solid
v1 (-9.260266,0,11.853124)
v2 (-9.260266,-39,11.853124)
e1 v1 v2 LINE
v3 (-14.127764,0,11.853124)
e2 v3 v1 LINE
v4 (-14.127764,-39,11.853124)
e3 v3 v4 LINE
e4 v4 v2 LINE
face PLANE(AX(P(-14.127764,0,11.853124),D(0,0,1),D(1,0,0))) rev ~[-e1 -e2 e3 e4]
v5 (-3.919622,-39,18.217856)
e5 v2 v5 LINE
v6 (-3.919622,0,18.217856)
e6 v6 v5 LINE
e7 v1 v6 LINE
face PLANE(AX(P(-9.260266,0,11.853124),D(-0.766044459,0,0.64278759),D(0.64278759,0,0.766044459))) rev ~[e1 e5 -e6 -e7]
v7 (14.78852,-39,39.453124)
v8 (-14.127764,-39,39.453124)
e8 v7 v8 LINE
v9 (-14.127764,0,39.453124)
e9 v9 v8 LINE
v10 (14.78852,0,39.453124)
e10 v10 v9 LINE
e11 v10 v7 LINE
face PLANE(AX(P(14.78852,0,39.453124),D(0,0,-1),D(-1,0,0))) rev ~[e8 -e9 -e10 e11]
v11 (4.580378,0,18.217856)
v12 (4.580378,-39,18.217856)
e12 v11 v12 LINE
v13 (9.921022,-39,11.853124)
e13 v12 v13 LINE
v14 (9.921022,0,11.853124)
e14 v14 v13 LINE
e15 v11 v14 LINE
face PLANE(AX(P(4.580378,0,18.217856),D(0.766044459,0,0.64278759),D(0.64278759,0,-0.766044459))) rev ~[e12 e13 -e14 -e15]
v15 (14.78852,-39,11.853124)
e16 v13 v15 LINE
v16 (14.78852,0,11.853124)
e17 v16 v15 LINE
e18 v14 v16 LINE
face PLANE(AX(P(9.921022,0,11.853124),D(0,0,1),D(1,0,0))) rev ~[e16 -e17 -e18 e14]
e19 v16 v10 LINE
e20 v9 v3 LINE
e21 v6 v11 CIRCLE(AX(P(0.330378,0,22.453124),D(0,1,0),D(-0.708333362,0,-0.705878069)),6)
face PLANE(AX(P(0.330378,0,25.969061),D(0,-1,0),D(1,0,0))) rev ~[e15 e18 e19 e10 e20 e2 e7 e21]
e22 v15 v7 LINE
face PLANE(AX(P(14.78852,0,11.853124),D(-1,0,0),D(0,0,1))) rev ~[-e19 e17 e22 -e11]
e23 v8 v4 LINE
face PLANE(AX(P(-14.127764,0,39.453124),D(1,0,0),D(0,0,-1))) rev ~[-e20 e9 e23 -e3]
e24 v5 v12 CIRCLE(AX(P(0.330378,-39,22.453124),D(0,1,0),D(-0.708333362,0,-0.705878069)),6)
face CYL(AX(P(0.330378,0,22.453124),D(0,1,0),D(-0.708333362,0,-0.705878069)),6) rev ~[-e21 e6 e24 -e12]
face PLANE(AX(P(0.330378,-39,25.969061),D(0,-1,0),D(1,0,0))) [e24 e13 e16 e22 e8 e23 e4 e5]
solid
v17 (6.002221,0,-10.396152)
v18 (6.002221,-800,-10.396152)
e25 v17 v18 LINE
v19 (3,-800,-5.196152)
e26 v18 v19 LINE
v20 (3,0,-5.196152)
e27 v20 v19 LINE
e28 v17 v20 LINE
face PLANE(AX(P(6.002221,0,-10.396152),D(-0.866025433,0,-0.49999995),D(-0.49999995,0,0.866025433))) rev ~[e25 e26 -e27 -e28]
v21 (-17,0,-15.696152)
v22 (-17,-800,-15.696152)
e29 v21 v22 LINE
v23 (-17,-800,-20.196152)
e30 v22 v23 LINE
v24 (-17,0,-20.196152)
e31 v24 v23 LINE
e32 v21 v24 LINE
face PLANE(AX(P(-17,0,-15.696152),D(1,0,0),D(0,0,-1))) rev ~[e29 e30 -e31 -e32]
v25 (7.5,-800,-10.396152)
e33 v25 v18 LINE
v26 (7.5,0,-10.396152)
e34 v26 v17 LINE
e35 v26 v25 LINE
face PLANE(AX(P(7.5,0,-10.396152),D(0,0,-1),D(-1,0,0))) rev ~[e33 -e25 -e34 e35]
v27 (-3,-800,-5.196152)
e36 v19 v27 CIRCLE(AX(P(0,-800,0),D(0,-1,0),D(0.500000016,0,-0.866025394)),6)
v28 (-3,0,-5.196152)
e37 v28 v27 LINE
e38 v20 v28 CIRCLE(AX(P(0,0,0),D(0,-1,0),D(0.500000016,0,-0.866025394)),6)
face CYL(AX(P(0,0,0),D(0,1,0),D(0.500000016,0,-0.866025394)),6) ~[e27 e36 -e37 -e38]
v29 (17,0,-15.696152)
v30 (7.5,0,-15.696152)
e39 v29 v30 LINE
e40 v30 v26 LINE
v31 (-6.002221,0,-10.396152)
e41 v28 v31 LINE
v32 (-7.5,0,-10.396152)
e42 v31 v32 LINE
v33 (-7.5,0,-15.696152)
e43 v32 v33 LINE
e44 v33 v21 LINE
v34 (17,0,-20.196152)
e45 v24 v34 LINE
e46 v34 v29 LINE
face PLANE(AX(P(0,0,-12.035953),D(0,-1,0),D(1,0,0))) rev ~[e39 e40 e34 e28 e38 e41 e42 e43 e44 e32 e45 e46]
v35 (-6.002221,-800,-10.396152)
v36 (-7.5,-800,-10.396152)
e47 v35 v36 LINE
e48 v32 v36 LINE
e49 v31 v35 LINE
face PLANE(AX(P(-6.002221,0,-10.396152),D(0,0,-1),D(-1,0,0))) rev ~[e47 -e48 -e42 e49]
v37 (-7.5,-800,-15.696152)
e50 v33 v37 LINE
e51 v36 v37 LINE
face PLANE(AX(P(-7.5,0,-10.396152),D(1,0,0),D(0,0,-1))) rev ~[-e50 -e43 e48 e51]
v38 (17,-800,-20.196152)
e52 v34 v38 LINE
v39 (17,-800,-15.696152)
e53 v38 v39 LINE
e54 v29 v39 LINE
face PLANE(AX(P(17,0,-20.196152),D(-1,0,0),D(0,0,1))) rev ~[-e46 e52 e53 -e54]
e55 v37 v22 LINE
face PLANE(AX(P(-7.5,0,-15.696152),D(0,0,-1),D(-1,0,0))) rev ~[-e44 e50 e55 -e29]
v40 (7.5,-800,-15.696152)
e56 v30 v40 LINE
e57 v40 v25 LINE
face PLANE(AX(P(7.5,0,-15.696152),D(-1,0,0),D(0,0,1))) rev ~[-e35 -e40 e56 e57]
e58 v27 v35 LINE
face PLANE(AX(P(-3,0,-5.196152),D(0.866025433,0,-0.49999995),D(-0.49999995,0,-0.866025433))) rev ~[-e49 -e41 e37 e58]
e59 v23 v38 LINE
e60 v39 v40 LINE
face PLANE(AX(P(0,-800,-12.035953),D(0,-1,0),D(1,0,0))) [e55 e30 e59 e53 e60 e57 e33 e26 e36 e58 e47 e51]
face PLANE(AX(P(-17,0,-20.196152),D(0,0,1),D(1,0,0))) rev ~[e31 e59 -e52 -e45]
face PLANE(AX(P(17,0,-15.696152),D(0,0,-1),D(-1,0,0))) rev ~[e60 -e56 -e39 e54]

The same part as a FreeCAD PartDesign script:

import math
import FreeCAD as App
import Part
import Sketcher

V = App.Vector
Q = App.Units.Quantity

doc = App.newDocument("Part")
body = doc.addObject("PartDesign::Body", "Body")

# Sketch on XZ plane
sketch1 = body.newObject("Sketcher::SketchObject", "Sketch")
sketch1.AttachmentSupport = (doc.getObject("XZ_Plane"), [""])
sketch1.MapMode = "FlatFace"
sketch1.addGeometry([
    Part.ArcOfCircle(Part.Circle(V(0, 0, 0), V(0, 0, 1), 6), math.radians(-59.999999), math.radians(239.999999)),  # 0
    Part.LineSegment(V(-3, -5.196152, 0), V(-6.002221, -10.396152, 0)),  # 1
    Part.LineSegment(V(-6.002221, -10.396152, 0), V(-7.5, -10.396152, 0)),  # 2
    Part.LineSegment(V(-7.5, -10.396152, 0), V(-7.5, -15.696152, 0)),  # 3
    Part.LineSegment(V(-7.5, -15.696152, 0), V(-17, -15.696152, 0)),  # 4
    Part.LineSegment(V(-17, -15.696152, 0), V(-17, -20.196152, 0)),  # 5
    Part.LineSegment(V(-17, -20.196152, 0), V(17, -20.196152, 0)),  # 6
    Part.LineSegment(V(17, -20.196152, 0), V(17, -15.696152, 0)),  # 7
    Part.LineSegment(V(17, -15.696152, 0), V(7.5, -15.696152, 0)),  # 8
    Part.LineSegment(V(7.5, -15.696152, 0), V(7.5, -10.396152, 0)),  # 9
    Part.LineSegment(V(7.5, -10.396152, 0), V(6.002221, -10.396152, 0)),  # 10
    Part.LineSegment(V(6.002221, -10.396152, 0), V(3, -5.196152, 0)),  # 11
], False)
sketch1.addConstraint([
    Sketcher.Constraint("Coincident", 0, 2, 1, 1),
    Sketcher.Constraint("Coincident", 1, 2, 2, 1),
    Sketcher.Constraint("Coincident", 2, 2, 3, 1),
    Sketcher.Constraint("Coincident", 3, 2, 4, 1),
    Sketcher.Constraint("Coincident", 4, 2, 5, 1),
    Sketcher.Constraint("Coincident", 5, 2, 6, 1),
    Sketcher.Constraint("Coincident", 6, 2, 7, 1),
    Sketcher.Constraint("Coincident", 7, 2, 8, 1),
    Sketcher.Constraint("Coincident", 8, 2, 9, 1),
    Sketcher.Constraint("Coincident", 9, 2, 10, 1),
    Sketcher.Constraint("Coincident", 10, 2, 11, 1),
    Sketcher.Constraint("Coincident", 11, 2, 0, 1),
    Sketcher.Constraint("Horizontal", 2),
    Sketcher.Constraint("Vertical", 3),
    Sketcher.Constraint("Horizontal", 4),
    Sketcher.Constraint("Vertical", 5),
    Sketcher.Constraint("Horizontal", 6),
    Sketcher.Constraint("Vertical", 7),
    Sketcher.Constraint("Horizontal", 8),
    Sketcher.Constraint("Vertical", 9),
    Sketcher.Constraint("Horizontal", 10),
    Sketcher.Constraint("Coincident", 0, 3, -1, 1),
    Sketcher.Constraint("Symmetric", 4, 2, 7, 2, -2),
    Sketcher.Constraint("Symmetric", 2, 2, 9, 2, -2),
    Sketcher.Constraint("Horizontal", 0, 2, 11, 2),
    Sketcher.Constraint("Equal", 2, 10),
    Sketcher.Constraint("Radius", 0, 6.0),
    Sketcher.Constraint("DistanceX", 6, 1, 6, 2, 34.0),
    Sketcher.Constraint("Angle", 1, Q("-119.999997 deg")),
    Sketcher.Constraint("DistanceX", 4, 2, 4, 1, 9.5),
    Sketcher.Constraint("DistanceY", 3, 2, 3, 1, 5.3),
    Sketcher.Constraint("DistanceY", 5, 2, 5, 1, 4.5),
    Sketcher.Constraint("DistanceX", 0, 2, -1, 1, 3.0),
    Sketcher.Constraint("DistanceY", 5, 2, 0, 2, 15.0),
])
pad1 = body.newObject("PartDesign::Pad", "Pad")
pad1.Profile = sketch1
pad1.Length = 800
body2 = doc.addObject("PartDesign::Body", "Body001")

# Sketch on XZ plane
sketch2 = body2.newObject("Sketcher::SketchObject", "Sketch001")
sketch2.AttachmentSupport = (doc.getObject("XZ_Plane001"), [""])
sketch2.MapMode = "FlatFace"
sketch2.addGeometry([
    Part.LineSegment(V(14.78852, 39.453124, 0), V(-14.127764, 39.453124, 0)),  # 0
    Part.LineSegment(V(-14.127764, 39.453124, 0), V(-14.127764, 11.853124, 0)),  # 1
    Part.LineSegment(V(-14.127764, 11.853124, 0), V(-9.260266, 11.853124, 0)),  # 2
    Part.LineSegment(V(-9.260266, 11.853124, 0), V(-3.919622, 18.217856, 0)),  # 3
    Part.ArcOfCircle(Part.Circle(V(0.330378, 22.453124, 0), V(0, 0, 1), 6), math.radians(-44.900526), math.radians(224.900526)),  # 4
    Part.LineSegment(V(4.580378, 18.217856, 0), V(9.921022, 11.853124, 0)),  # 5
    Part.LineSegment(V(9.921022, 11.853124, 0), V(14.78852, 11.853124, 0)),  # 6
    Part.LineSegment(V(14.78852, 11.853124, 0), V(14.78852, 39.453124, 0)),  # 7
], False)
sketch2.addConstraint([
    Sketcher.Constraint("Coincident", 0, 2, 1, 1),
    Sketcher.Constraint("Coincident", 1, 2, 2, 1),
    Sketcher.Constraint("Coincident", 2, 2, 3, 1),
    Sketcher.Constraint("Coincident", 3, 2, 4, 2),
    Sketcher.Constraint("Coincident", 4, 1, 5, 1),
    Sketcher.Constraint("Coincident", 5, 2, 6, 1),
    Sketcher.Constraint("Coincident", 6, 2, 7, 1),
    Sketcher.Constraint("Coincident", 7, 2, 0, 1),
    Sketcher.Constraint("Horizontal", 0),
    Sketcher.Constraint("Vertical", 1),
    Sketcher.Constraint("Horizontal", 2),
    Sketcher.Constraint("Horizontal", 6),
    Sketcher.Constraint("Vertical", 7),
    Sketcher.Constraint("Horizontal", 3, 2, 4, 1),
    Sketcher.Constraint("Horizontal", 2, 2, 5, 2),
    Sketcher.Constraint("Equal", 2, 6),
    Sketcher.Constraint("Equal", 3, 5),
    Sketcher.Constraint("Radius", 4, 6.0),
    Sketcher.Constraint("Angle", 3, Q("50.000001 deg")),
    Sketcher.Constraint("DistanceY", 1, 2, 1, 1, 27.6),
    Sketcher.Constraint("DistanceY", 4, 3, 0, 2, 17.0),
    Sketcher.Constraint("DistanceX", 3, 2, 4, 1, 8.5),
    Sketcher.Constraint("DistanceX", 2, 1, 2, 2, 4.867498),
    Sketcher.Constraint("DistanceX", 3, 2, -1, 1, 3.919622),
    Sketcher.Constraint("DistanceY", -1, 1, 4, 3, 22.453124),
])
pad2 = body2.newObject("PartDesign::Pad", "Pad001")
pad2.Profile = sketch2
pad2.Length = 39

doc.recompute()
